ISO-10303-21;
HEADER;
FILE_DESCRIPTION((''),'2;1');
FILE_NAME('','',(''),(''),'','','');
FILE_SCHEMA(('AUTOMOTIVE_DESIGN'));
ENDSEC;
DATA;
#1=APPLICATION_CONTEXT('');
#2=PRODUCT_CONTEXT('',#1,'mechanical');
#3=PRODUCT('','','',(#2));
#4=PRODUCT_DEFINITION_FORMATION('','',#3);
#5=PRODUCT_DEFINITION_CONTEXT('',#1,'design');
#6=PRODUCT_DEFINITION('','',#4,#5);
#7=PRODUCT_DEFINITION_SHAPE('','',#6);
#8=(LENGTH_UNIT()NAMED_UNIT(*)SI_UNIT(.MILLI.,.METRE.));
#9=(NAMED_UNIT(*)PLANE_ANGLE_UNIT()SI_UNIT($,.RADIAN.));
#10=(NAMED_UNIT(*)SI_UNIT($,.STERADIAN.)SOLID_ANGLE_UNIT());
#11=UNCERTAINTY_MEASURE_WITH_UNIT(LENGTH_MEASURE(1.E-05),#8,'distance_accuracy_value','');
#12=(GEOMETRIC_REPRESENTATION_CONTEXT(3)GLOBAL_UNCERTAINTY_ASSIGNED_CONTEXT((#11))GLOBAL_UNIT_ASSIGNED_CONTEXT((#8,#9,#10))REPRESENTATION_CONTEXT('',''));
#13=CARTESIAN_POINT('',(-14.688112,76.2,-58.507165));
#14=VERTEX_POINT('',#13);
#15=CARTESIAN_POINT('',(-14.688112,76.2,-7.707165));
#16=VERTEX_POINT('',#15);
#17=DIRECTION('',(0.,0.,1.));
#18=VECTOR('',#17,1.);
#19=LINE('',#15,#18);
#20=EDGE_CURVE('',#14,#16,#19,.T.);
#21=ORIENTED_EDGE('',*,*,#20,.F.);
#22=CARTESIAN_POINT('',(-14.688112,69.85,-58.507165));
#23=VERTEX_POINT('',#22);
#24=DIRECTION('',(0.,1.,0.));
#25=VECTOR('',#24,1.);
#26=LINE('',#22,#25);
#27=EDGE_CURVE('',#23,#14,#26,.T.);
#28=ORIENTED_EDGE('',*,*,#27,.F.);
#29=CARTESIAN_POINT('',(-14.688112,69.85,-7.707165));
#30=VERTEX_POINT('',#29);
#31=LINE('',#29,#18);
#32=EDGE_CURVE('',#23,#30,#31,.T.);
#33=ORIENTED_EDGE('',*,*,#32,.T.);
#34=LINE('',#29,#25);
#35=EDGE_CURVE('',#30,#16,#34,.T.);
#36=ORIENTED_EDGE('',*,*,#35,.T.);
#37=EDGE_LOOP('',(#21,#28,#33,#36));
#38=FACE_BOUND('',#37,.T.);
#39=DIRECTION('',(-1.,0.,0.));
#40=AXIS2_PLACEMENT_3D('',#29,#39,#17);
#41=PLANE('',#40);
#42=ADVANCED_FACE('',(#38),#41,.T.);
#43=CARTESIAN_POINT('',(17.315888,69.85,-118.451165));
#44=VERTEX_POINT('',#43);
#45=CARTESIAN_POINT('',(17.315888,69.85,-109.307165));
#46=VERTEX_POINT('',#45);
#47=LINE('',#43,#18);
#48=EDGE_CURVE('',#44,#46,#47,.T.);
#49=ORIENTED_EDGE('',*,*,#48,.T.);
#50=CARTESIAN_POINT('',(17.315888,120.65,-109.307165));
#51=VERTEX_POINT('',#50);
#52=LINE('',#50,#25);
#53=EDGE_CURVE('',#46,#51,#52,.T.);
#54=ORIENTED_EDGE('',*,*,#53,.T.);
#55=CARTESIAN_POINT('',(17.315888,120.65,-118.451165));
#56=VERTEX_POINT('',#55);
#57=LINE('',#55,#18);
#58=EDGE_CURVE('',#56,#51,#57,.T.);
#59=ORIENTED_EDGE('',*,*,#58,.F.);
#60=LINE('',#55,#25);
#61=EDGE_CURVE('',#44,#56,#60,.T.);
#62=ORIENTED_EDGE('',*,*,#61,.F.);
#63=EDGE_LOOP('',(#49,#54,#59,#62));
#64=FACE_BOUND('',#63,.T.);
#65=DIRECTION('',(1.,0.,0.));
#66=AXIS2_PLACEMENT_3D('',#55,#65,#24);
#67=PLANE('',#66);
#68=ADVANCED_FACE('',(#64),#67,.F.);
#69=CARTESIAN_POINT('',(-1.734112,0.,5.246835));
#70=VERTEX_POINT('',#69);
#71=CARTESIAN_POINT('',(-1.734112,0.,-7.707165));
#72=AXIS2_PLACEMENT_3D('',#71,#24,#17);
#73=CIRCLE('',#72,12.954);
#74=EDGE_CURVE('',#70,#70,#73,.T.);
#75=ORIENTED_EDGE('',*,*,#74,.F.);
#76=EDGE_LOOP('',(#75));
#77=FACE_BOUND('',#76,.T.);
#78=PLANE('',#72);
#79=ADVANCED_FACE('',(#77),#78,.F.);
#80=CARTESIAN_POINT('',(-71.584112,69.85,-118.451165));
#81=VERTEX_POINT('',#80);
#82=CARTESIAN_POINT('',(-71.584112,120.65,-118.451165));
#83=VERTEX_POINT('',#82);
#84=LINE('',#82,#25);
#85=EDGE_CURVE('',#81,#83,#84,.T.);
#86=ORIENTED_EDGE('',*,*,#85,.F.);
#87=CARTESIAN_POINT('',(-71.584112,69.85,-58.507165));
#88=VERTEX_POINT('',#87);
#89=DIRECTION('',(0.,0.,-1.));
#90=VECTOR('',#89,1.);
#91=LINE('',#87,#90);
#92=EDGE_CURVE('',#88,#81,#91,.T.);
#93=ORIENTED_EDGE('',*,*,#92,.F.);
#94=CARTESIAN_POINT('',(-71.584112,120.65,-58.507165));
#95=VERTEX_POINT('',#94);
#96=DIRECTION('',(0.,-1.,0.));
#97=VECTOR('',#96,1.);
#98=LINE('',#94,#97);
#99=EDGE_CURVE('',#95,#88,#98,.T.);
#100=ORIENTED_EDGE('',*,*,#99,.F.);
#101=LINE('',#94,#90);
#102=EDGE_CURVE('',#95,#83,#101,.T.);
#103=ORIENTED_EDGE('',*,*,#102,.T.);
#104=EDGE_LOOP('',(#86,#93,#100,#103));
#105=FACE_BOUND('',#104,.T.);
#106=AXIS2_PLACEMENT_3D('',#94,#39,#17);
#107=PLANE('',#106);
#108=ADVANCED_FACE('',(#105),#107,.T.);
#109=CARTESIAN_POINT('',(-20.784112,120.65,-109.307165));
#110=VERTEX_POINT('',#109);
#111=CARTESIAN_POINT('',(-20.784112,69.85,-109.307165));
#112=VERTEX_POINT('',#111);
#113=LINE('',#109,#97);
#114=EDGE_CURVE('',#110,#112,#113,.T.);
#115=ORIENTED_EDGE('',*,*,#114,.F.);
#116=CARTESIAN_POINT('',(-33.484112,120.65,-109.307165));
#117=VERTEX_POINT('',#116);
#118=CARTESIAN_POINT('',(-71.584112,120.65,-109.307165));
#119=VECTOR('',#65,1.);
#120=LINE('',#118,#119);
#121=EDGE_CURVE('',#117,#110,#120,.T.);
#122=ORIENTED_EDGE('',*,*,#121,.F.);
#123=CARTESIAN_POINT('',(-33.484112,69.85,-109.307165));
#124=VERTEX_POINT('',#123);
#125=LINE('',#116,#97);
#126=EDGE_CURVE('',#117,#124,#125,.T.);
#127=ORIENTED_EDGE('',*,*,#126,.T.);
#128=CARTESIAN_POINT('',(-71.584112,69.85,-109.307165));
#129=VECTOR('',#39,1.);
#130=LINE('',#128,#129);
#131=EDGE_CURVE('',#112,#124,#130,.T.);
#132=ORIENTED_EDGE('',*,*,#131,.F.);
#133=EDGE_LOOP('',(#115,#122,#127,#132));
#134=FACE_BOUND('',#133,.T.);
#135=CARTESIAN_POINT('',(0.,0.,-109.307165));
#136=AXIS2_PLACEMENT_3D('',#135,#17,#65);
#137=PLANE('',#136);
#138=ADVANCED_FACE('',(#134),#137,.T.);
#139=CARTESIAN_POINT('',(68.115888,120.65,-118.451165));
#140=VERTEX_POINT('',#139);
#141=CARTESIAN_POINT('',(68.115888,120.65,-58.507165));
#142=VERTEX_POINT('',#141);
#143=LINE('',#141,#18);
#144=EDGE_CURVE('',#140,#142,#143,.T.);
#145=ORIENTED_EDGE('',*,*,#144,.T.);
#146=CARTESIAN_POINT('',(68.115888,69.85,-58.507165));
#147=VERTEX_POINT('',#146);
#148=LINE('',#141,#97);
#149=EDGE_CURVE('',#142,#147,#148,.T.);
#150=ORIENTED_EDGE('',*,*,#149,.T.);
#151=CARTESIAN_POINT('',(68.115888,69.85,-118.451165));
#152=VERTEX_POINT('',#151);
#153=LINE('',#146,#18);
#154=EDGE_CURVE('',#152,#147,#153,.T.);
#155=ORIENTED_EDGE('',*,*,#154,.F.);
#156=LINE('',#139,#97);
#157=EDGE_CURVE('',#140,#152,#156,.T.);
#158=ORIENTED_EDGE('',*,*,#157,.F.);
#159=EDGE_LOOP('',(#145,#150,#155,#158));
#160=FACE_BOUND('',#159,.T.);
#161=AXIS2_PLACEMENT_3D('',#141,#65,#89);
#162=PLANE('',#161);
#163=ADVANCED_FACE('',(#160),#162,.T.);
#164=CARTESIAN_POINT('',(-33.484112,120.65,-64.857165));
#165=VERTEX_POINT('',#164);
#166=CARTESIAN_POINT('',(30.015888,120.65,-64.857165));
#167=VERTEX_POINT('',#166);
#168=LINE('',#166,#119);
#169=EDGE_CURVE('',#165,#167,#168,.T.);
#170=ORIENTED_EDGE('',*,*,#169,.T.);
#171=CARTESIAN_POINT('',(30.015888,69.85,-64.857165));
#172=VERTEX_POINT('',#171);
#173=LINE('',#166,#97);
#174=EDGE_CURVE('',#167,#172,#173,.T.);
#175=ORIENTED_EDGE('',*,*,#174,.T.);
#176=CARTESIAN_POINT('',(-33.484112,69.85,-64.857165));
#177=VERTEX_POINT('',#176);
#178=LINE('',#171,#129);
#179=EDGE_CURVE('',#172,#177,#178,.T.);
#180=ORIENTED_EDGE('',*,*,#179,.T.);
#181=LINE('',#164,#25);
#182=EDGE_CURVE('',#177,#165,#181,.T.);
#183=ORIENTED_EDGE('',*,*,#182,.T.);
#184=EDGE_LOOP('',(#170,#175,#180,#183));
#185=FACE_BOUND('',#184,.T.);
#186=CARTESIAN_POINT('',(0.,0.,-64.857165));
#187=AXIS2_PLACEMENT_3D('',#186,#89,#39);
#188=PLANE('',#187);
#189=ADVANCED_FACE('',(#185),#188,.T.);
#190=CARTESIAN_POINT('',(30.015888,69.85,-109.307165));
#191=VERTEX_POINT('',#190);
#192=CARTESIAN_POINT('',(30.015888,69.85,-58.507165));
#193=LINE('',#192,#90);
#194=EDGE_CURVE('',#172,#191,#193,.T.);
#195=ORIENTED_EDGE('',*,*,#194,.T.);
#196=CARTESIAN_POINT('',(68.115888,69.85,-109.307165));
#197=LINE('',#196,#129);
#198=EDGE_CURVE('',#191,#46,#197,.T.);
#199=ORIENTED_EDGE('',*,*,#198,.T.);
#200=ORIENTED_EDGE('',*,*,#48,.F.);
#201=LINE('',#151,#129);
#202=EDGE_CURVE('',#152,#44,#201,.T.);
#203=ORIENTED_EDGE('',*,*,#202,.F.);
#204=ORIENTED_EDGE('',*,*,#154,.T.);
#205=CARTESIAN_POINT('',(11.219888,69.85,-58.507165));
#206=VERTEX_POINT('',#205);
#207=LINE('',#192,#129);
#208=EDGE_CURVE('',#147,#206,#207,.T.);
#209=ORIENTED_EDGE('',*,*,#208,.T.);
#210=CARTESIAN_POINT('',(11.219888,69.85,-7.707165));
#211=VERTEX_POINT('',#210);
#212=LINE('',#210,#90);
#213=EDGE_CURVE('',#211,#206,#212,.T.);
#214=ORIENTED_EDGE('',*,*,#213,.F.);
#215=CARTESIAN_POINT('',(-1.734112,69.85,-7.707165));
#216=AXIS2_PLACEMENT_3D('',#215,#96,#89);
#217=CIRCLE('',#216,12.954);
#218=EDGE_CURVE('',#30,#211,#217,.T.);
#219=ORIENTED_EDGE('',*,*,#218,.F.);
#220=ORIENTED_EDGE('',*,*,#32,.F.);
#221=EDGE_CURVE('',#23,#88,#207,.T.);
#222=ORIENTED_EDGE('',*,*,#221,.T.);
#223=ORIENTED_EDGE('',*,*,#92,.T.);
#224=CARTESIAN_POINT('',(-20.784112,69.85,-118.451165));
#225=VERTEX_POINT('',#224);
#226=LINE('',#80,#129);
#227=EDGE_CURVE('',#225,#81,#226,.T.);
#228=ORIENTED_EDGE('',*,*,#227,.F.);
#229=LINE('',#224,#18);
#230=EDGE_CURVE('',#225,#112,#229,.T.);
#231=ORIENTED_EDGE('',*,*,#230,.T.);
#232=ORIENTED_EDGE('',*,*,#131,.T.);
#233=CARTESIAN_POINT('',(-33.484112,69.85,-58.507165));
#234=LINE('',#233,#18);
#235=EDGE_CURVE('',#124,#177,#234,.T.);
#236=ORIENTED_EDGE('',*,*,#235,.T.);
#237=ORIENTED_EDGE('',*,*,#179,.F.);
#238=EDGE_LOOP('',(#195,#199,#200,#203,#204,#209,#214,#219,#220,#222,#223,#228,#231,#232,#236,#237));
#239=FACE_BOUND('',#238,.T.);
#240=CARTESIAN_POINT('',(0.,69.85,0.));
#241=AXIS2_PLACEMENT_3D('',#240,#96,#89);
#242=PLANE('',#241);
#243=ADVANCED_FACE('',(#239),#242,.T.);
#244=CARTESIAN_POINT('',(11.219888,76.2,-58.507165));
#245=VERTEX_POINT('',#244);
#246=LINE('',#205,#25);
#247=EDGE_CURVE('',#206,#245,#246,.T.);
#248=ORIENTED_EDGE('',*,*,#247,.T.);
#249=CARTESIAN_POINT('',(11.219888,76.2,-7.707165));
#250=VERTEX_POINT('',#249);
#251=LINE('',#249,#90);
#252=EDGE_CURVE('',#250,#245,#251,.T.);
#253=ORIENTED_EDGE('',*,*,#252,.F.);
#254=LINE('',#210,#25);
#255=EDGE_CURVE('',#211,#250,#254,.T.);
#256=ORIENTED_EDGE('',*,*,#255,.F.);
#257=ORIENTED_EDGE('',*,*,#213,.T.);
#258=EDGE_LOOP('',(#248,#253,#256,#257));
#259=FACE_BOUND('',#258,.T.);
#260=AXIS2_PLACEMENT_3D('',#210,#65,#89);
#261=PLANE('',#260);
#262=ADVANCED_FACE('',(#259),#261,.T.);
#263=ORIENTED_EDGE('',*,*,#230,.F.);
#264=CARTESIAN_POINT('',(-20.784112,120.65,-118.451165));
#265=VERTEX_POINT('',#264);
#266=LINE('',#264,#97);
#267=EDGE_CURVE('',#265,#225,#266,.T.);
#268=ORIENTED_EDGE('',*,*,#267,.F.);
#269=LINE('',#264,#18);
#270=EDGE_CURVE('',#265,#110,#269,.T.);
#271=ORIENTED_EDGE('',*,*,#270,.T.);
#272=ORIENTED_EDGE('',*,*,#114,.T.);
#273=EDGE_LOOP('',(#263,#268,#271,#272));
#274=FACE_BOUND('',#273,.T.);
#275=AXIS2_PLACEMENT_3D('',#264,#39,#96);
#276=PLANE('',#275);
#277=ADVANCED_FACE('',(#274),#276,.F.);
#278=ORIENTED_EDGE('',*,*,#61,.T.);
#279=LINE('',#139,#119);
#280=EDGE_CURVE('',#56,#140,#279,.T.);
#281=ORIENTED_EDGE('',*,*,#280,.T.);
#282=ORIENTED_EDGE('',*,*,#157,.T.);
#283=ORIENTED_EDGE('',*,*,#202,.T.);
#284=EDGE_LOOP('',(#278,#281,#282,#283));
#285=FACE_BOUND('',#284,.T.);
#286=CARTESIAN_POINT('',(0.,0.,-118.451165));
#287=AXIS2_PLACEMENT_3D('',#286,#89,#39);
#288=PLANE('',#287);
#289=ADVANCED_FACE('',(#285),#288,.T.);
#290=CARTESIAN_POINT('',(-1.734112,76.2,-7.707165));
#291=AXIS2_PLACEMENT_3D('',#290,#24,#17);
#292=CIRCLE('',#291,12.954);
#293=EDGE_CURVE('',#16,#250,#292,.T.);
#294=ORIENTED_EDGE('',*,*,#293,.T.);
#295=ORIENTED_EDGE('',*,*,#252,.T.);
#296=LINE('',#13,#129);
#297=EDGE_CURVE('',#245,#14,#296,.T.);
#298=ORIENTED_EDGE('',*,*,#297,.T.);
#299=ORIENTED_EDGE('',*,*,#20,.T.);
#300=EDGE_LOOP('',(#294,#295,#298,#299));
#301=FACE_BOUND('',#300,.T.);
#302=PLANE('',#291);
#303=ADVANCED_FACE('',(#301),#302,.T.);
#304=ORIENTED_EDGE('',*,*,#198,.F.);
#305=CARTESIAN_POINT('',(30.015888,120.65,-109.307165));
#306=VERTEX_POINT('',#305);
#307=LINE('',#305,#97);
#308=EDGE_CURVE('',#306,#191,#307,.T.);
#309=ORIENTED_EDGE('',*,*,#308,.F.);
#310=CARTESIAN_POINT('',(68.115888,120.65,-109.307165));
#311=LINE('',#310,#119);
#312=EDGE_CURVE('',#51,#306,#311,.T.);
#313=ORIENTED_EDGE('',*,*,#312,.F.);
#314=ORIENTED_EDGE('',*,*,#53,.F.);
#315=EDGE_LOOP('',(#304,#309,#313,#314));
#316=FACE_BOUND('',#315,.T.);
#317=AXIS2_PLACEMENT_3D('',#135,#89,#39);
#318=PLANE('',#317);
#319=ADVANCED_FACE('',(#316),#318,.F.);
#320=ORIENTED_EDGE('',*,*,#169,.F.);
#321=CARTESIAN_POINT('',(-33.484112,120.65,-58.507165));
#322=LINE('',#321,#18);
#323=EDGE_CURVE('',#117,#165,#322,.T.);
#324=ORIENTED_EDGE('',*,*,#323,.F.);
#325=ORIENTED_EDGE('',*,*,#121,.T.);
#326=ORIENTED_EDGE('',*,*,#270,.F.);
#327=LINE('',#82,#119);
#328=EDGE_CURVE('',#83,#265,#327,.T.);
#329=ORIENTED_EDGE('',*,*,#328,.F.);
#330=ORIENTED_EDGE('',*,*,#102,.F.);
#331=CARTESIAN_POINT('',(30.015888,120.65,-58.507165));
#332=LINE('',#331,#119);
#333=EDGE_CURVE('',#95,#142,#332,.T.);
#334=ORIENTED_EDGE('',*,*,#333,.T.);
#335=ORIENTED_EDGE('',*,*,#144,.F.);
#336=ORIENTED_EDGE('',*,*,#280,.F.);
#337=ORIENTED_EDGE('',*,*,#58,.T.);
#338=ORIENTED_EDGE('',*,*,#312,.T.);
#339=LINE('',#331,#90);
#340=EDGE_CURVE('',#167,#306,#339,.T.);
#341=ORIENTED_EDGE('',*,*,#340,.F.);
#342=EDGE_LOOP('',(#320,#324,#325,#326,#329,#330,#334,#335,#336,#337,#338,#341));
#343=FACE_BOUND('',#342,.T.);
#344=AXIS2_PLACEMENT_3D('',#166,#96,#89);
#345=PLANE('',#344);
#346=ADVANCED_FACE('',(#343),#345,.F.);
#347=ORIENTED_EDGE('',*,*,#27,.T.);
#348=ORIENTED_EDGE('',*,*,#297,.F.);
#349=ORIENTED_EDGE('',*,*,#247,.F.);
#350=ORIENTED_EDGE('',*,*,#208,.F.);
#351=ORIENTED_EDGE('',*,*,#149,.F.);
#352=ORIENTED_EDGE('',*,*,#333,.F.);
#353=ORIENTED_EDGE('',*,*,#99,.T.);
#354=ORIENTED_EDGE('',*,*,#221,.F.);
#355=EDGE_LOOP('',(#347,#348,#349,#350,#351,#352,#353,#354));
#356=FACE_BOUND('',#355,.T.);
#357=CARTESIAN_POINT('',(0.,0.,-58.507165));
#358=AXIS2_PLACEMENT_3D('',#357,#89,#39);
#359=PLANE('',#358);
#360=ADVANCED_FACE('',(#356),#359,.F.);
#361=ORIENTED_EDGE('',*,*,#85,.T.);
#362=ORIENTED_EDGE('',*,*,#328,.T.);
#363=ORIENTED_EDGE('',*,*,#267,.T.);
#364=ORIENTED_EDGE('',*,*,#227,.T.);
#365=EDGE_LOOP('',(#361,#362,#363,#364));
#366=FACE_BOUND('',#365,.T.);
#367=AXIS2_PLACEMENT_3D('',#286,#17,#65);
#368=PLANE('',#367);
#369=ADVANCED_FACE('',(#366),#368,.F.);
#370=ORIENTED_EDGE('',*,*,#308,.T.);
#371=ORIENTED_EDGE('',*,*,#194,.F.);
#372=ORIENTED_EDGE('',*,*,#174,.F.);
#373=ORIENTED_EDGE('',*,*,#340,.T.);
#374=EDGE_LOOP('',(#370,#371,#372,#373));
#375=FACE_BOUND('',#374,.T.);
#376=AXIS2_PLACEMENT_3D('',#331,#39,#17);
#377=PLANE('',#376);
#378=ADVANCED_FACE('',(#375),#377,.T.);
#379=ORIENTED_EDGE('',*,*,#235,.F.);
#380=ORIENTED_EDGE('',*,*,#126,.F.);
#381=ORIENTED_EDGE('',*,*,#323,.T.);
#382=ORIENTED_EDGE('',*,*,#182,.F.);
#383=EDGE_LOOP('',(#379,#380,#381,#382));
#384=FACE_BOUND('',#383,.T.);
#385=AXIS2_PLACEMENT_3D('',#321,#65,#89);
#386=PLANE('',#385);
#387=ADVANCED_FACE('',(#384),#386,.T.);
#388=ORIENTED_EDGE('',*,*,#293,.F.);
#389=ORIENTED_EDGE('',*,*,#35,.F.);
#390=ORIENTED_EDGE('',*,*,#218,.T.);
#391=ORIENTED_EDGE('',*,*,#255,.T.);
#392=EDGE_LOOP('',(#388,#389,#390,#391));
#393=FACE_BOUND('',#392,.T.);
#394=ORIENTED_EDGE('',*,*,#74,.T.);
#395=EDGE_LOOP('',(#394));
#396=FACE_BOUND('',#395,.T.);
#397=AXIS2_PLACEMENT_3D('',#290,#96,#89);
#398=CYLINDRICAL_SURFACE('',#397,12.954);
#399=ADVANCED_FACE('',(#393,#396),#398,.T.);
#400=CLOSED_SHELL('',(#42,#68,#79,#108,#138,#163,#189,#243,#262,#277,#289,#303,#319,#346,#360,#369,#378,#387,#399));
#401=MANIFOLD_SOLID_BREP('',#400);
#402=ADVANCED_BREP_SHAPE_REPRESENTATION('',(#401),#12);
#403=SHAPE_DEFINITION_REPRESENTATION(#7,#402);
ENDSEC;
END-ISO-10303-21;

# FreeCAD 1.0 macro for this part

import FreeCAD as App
import Part
import Sketcher

V = App.Vector
Q = App.Units.Quantity


def add_polygon(sketch, points):
    """Adds a closed chain of lines whose ends are joined by coincident constraints."""
    first, n = sketch.GeometryCount, len(points)
    for a, b in zip(points, points[1:] + points[:1]):
        sketch.addGeometry(Part.LineSegment(App.Vector(*a, 0), App.Vector(*b, 0)), False)
    for i in range(n):
        sketch.addConstraint(Sketcher.Constraint("Coincident", first + i, 2, first + (i + 1) % n, 1))

doc = App.newDocument("Part")
body = doc.addObject("PartDesign::Body", "Body")

# Sketch on XZ plane
sketch1 = body.newObject("Sketcher::SketchObject", "Sketch")
sketch1.AttachmentSupport = (doc.getObject("XZ_Plane"), [""])
sketch1.MapMode = "FlatFace"
sketch1.addGeometry(Part.Circle(V(-1.734112, -7.707165, 0), V(0, 0, 1), 12.954), False)
sketch1.addConstraint([
    Sketcher.Constraint("Diameter", 0, Q("1.02 in")),
    Sketcher.Constraint("DistanceX", 0, 3, -1, 1, Q("1.734112 mm")),
    Sketcher.Constraint("DistanceY", 0, 3, -1, 1, Q("7.707165 mm")),
])
pad1 = body.newObject("PartDesign::Pad", "Pad")
pad1.Profile = sketch1
pad1.Length = Q("3 in")
pad1.Reversed = True

# Sketch on XZ plane
sketch2 = body.newObject("Sketcher::SketchObject", "Sketch001")
sketch2.AttachmentSupport = (doc.getObject("XZ_Plane"), [""])
sketch2.MapMode = "FlatFace"
sketch2.AttachmentOffset = App.Placement(V(0, 0, -3 * 25.4), App.Rotation())
add_polygon(sketch2, [(-14.688112, -58.507165), (-14.688112, -7.707165), (11.219888, -7.707165), (11.219888, -58.507165)])  # lines 0-3
sketch2.addConstraint([
    Sketcher.Constraint("Vertical", 0),
    Sketcher.Constraint("Horizontal", 1),
    Sketcher.Constraint("Vertical", 2),
    Sketcher.Constraint("Horizontal", 3),
    Sketcher.Constraint("DistanceY", 0, 1, 0, 2, Q("2 in")),
    Sketcher.Constraint("DistanceX", 1, 1, 1, 2, Q("1.02 in")),
    Sketcher.Constraint("DistanceX", 0, 2, -1, 1, Q("14.688112 mm")),
    Sketcher.Constraint("DistanceY", 0, 2, -1, 1, Q("7.707165 mm")),
])
pad2 = body.newObject("PartDesign::Pad", "Pad001")
pad2.Profile = sketch2
pad2.Length = Q("0.25 in")

# Sketch on XY plane
sketch3 = body.newObject("Sketcher::SketchObject", "Sketch002")
sketch3.AttachmentSupport = (doc.getObject("XY_Plane"), [""])
sketch3.MapMode = "FlatFace"
sketch3.AttachmentOffset = App.Placement(V(0, 0, -58.507165), App.Rotation())
add_polygon(sketch3, [(30.015888, 120.65), (30.015888, 69.85), (-33.484112, 69.85), (-33.484112, 120.65)])  # lines 0-3
sketch3.addConstraint([
    Sketcher.Constraint("Vertical", 0),
    Sketcher.Constraint("Horizontal", 1),
    Sketcher.Constraint("Vertical", 2),
    Sketcher.Constraint("Horizontal", 3),
    Sketcher.Constraint("DistanceY", 0, 2, 0, 1, Q("2 in")),
    Sketcher.Constraint("DistanceX", 1, 2, 1, 1, Q("2.5 in")),
    Sketcher.Constraint("DistanceY", -1, 1, 0, 2, Q("2.75 in")),
    Sketcher.Constraint("DistanceX", -1, 1, 0, 2, Q("30.015888 mm")),
])
pad3 = body.newObject("PartDesign::Pad", "Pad002")
pad3.Profile = sketch3
pad3.Length = Q("0.25 in")
pad3.Reversed = True

# Sketch on XZ plane
sketch4 = body.newObject("Sketcher::SketchObject", "Sketch003")
sketch4.AttachmentSupport = (doc.getObject("XZ_Plane"), [""])
sketch4.MapMode = "FlatFace"
sketch4.AttachmentOffset = App.Placement(V(0, 0, -2.75 * 25.4), App.Rotation())
add_polygon(sketch4, [(-71.584112, -58.507165), (-71.584112, -109.307165), (-33.484112, -109.307165), (-33.484112, -58.507165)])  # lines 0-3
add_polygon(sketch4, [(30.015888, -58.507165), (30.015888, -109.307165), (68.115888, -109.307165), (68.115888, -58.507165)])  # lines 4-7
sketch4.addConstraint([
    Sketcher.Constraint("Vertical", 0),
    Sketcher.Constraint("Horizontal", 1),
    Sketcher.Constraint("Vertical", 2),
    Sketcher.Constraint("Horizontal", 3),
    Sketcher.Constraint("Vertical", 4),
    Sketcher.Constraint("Horizontal", 5),
    Sketcher.Constraint("Vertical", 6),
    Sketcher.Constraint("Horizontal", 7),
    Sketcher.Constraint("Horizontal", 1, 2, 4, 2),
    Sketcher.Constraint("Horizontal", 3, 2, 6, 2),
    Sketcher.Constraint("Equal", 3, 5),
    Sketcher.Constraint("DistanceY", 0, 2, 0, 1, Q("2 in")),
    Sketcher.Constraint("DistanceX", 1, 1, 1, 2, Q("1.5 in")),
    Sketcher.Constraint("DistanceX", 0, 2, 4, 2, Q("4 in")),
    Sketcher.Constraint("DistanceX", 0, 2, -1, 1, Q("71.584112 mm")),
    Sketcher.Constraint("DistanceY", 0, 2, -1, 1, Q("109.307165 mm")),
])
pad4 = body.newObject("PartDesign::Pad", "Pad003")
pad4.Profile = sketch4
pad4.Length = Q("2 in")
pad4.Reversed = True

# Sketch on XY plane
sketch5 = body.newObject("Sketcher::SketchObject", "Sketch004")
sketch5.AttachmentSupport = (doc.getObject("XY_Plane"), [""])
sketch5.MapMode = "FlatFace"
sketch5.AttachmentOffset = App.Placement(V(0, 0, -109.307165), App.Rotation())
add_polygon(sketch5, [(68.115888, 120.65), (68.115888, 69.85), (17.315888, 69.85), (17.315888, 120.65)])  # lines 0-3
add_polygon(sketch5, [(-20.784112, 120.65), (-20.784112, 69.85), (-71.584112, 69.85), (-71.584112, 120.65)])  # lines 4-7
sketch5.addConstraint([
    Sketcher.Constraint("Vertical", 0),
    Sketcher.Constraint("Horizontal", 1),
    Sketcher.Constraint("Vertical", 2),
    Sketcher.Constraint("Horizontal", 3),
    Sketcher.Constraint("Vertical", 4),
    Sketcher.Constraint("Horizontal", 5),
    Sketcher.Constraint("Vertical", 6),
    Sketcher.Constraint("Horizontal", 7),
    Sketcher.Constraint("Horizontal", 1, 2, 4, 2),
    Sketcher.Constraint("Horizontal", 3, 2, 6, 2),
    Sketcher.Constraint("Equal", 3, 5),
    Sketcher.Constraint("Equal", 7, 0),
    Sketcher.Constraint("DistanceX", 1, 2, 1, 1, Q("2 in")),
    Sketcher.Constraint("DistanceX", 4, 2, 1, 2, Q("1.5 in")),
    Sketcher.Constraint("DistanceY", -1, 1, 0, 2, Q("2.75 in")),
    Sketcher.Constraint("DistanceX", -1, 1, 0, 2, Q("68.115888 mm")),
])
pad5 = body.newObject("PartDesign::Pad", "Pad004")
pad5.Profile = sketch5
pad5.Length = Q("0.36 in")
pad5.Reversed = True

doc.recompute()
